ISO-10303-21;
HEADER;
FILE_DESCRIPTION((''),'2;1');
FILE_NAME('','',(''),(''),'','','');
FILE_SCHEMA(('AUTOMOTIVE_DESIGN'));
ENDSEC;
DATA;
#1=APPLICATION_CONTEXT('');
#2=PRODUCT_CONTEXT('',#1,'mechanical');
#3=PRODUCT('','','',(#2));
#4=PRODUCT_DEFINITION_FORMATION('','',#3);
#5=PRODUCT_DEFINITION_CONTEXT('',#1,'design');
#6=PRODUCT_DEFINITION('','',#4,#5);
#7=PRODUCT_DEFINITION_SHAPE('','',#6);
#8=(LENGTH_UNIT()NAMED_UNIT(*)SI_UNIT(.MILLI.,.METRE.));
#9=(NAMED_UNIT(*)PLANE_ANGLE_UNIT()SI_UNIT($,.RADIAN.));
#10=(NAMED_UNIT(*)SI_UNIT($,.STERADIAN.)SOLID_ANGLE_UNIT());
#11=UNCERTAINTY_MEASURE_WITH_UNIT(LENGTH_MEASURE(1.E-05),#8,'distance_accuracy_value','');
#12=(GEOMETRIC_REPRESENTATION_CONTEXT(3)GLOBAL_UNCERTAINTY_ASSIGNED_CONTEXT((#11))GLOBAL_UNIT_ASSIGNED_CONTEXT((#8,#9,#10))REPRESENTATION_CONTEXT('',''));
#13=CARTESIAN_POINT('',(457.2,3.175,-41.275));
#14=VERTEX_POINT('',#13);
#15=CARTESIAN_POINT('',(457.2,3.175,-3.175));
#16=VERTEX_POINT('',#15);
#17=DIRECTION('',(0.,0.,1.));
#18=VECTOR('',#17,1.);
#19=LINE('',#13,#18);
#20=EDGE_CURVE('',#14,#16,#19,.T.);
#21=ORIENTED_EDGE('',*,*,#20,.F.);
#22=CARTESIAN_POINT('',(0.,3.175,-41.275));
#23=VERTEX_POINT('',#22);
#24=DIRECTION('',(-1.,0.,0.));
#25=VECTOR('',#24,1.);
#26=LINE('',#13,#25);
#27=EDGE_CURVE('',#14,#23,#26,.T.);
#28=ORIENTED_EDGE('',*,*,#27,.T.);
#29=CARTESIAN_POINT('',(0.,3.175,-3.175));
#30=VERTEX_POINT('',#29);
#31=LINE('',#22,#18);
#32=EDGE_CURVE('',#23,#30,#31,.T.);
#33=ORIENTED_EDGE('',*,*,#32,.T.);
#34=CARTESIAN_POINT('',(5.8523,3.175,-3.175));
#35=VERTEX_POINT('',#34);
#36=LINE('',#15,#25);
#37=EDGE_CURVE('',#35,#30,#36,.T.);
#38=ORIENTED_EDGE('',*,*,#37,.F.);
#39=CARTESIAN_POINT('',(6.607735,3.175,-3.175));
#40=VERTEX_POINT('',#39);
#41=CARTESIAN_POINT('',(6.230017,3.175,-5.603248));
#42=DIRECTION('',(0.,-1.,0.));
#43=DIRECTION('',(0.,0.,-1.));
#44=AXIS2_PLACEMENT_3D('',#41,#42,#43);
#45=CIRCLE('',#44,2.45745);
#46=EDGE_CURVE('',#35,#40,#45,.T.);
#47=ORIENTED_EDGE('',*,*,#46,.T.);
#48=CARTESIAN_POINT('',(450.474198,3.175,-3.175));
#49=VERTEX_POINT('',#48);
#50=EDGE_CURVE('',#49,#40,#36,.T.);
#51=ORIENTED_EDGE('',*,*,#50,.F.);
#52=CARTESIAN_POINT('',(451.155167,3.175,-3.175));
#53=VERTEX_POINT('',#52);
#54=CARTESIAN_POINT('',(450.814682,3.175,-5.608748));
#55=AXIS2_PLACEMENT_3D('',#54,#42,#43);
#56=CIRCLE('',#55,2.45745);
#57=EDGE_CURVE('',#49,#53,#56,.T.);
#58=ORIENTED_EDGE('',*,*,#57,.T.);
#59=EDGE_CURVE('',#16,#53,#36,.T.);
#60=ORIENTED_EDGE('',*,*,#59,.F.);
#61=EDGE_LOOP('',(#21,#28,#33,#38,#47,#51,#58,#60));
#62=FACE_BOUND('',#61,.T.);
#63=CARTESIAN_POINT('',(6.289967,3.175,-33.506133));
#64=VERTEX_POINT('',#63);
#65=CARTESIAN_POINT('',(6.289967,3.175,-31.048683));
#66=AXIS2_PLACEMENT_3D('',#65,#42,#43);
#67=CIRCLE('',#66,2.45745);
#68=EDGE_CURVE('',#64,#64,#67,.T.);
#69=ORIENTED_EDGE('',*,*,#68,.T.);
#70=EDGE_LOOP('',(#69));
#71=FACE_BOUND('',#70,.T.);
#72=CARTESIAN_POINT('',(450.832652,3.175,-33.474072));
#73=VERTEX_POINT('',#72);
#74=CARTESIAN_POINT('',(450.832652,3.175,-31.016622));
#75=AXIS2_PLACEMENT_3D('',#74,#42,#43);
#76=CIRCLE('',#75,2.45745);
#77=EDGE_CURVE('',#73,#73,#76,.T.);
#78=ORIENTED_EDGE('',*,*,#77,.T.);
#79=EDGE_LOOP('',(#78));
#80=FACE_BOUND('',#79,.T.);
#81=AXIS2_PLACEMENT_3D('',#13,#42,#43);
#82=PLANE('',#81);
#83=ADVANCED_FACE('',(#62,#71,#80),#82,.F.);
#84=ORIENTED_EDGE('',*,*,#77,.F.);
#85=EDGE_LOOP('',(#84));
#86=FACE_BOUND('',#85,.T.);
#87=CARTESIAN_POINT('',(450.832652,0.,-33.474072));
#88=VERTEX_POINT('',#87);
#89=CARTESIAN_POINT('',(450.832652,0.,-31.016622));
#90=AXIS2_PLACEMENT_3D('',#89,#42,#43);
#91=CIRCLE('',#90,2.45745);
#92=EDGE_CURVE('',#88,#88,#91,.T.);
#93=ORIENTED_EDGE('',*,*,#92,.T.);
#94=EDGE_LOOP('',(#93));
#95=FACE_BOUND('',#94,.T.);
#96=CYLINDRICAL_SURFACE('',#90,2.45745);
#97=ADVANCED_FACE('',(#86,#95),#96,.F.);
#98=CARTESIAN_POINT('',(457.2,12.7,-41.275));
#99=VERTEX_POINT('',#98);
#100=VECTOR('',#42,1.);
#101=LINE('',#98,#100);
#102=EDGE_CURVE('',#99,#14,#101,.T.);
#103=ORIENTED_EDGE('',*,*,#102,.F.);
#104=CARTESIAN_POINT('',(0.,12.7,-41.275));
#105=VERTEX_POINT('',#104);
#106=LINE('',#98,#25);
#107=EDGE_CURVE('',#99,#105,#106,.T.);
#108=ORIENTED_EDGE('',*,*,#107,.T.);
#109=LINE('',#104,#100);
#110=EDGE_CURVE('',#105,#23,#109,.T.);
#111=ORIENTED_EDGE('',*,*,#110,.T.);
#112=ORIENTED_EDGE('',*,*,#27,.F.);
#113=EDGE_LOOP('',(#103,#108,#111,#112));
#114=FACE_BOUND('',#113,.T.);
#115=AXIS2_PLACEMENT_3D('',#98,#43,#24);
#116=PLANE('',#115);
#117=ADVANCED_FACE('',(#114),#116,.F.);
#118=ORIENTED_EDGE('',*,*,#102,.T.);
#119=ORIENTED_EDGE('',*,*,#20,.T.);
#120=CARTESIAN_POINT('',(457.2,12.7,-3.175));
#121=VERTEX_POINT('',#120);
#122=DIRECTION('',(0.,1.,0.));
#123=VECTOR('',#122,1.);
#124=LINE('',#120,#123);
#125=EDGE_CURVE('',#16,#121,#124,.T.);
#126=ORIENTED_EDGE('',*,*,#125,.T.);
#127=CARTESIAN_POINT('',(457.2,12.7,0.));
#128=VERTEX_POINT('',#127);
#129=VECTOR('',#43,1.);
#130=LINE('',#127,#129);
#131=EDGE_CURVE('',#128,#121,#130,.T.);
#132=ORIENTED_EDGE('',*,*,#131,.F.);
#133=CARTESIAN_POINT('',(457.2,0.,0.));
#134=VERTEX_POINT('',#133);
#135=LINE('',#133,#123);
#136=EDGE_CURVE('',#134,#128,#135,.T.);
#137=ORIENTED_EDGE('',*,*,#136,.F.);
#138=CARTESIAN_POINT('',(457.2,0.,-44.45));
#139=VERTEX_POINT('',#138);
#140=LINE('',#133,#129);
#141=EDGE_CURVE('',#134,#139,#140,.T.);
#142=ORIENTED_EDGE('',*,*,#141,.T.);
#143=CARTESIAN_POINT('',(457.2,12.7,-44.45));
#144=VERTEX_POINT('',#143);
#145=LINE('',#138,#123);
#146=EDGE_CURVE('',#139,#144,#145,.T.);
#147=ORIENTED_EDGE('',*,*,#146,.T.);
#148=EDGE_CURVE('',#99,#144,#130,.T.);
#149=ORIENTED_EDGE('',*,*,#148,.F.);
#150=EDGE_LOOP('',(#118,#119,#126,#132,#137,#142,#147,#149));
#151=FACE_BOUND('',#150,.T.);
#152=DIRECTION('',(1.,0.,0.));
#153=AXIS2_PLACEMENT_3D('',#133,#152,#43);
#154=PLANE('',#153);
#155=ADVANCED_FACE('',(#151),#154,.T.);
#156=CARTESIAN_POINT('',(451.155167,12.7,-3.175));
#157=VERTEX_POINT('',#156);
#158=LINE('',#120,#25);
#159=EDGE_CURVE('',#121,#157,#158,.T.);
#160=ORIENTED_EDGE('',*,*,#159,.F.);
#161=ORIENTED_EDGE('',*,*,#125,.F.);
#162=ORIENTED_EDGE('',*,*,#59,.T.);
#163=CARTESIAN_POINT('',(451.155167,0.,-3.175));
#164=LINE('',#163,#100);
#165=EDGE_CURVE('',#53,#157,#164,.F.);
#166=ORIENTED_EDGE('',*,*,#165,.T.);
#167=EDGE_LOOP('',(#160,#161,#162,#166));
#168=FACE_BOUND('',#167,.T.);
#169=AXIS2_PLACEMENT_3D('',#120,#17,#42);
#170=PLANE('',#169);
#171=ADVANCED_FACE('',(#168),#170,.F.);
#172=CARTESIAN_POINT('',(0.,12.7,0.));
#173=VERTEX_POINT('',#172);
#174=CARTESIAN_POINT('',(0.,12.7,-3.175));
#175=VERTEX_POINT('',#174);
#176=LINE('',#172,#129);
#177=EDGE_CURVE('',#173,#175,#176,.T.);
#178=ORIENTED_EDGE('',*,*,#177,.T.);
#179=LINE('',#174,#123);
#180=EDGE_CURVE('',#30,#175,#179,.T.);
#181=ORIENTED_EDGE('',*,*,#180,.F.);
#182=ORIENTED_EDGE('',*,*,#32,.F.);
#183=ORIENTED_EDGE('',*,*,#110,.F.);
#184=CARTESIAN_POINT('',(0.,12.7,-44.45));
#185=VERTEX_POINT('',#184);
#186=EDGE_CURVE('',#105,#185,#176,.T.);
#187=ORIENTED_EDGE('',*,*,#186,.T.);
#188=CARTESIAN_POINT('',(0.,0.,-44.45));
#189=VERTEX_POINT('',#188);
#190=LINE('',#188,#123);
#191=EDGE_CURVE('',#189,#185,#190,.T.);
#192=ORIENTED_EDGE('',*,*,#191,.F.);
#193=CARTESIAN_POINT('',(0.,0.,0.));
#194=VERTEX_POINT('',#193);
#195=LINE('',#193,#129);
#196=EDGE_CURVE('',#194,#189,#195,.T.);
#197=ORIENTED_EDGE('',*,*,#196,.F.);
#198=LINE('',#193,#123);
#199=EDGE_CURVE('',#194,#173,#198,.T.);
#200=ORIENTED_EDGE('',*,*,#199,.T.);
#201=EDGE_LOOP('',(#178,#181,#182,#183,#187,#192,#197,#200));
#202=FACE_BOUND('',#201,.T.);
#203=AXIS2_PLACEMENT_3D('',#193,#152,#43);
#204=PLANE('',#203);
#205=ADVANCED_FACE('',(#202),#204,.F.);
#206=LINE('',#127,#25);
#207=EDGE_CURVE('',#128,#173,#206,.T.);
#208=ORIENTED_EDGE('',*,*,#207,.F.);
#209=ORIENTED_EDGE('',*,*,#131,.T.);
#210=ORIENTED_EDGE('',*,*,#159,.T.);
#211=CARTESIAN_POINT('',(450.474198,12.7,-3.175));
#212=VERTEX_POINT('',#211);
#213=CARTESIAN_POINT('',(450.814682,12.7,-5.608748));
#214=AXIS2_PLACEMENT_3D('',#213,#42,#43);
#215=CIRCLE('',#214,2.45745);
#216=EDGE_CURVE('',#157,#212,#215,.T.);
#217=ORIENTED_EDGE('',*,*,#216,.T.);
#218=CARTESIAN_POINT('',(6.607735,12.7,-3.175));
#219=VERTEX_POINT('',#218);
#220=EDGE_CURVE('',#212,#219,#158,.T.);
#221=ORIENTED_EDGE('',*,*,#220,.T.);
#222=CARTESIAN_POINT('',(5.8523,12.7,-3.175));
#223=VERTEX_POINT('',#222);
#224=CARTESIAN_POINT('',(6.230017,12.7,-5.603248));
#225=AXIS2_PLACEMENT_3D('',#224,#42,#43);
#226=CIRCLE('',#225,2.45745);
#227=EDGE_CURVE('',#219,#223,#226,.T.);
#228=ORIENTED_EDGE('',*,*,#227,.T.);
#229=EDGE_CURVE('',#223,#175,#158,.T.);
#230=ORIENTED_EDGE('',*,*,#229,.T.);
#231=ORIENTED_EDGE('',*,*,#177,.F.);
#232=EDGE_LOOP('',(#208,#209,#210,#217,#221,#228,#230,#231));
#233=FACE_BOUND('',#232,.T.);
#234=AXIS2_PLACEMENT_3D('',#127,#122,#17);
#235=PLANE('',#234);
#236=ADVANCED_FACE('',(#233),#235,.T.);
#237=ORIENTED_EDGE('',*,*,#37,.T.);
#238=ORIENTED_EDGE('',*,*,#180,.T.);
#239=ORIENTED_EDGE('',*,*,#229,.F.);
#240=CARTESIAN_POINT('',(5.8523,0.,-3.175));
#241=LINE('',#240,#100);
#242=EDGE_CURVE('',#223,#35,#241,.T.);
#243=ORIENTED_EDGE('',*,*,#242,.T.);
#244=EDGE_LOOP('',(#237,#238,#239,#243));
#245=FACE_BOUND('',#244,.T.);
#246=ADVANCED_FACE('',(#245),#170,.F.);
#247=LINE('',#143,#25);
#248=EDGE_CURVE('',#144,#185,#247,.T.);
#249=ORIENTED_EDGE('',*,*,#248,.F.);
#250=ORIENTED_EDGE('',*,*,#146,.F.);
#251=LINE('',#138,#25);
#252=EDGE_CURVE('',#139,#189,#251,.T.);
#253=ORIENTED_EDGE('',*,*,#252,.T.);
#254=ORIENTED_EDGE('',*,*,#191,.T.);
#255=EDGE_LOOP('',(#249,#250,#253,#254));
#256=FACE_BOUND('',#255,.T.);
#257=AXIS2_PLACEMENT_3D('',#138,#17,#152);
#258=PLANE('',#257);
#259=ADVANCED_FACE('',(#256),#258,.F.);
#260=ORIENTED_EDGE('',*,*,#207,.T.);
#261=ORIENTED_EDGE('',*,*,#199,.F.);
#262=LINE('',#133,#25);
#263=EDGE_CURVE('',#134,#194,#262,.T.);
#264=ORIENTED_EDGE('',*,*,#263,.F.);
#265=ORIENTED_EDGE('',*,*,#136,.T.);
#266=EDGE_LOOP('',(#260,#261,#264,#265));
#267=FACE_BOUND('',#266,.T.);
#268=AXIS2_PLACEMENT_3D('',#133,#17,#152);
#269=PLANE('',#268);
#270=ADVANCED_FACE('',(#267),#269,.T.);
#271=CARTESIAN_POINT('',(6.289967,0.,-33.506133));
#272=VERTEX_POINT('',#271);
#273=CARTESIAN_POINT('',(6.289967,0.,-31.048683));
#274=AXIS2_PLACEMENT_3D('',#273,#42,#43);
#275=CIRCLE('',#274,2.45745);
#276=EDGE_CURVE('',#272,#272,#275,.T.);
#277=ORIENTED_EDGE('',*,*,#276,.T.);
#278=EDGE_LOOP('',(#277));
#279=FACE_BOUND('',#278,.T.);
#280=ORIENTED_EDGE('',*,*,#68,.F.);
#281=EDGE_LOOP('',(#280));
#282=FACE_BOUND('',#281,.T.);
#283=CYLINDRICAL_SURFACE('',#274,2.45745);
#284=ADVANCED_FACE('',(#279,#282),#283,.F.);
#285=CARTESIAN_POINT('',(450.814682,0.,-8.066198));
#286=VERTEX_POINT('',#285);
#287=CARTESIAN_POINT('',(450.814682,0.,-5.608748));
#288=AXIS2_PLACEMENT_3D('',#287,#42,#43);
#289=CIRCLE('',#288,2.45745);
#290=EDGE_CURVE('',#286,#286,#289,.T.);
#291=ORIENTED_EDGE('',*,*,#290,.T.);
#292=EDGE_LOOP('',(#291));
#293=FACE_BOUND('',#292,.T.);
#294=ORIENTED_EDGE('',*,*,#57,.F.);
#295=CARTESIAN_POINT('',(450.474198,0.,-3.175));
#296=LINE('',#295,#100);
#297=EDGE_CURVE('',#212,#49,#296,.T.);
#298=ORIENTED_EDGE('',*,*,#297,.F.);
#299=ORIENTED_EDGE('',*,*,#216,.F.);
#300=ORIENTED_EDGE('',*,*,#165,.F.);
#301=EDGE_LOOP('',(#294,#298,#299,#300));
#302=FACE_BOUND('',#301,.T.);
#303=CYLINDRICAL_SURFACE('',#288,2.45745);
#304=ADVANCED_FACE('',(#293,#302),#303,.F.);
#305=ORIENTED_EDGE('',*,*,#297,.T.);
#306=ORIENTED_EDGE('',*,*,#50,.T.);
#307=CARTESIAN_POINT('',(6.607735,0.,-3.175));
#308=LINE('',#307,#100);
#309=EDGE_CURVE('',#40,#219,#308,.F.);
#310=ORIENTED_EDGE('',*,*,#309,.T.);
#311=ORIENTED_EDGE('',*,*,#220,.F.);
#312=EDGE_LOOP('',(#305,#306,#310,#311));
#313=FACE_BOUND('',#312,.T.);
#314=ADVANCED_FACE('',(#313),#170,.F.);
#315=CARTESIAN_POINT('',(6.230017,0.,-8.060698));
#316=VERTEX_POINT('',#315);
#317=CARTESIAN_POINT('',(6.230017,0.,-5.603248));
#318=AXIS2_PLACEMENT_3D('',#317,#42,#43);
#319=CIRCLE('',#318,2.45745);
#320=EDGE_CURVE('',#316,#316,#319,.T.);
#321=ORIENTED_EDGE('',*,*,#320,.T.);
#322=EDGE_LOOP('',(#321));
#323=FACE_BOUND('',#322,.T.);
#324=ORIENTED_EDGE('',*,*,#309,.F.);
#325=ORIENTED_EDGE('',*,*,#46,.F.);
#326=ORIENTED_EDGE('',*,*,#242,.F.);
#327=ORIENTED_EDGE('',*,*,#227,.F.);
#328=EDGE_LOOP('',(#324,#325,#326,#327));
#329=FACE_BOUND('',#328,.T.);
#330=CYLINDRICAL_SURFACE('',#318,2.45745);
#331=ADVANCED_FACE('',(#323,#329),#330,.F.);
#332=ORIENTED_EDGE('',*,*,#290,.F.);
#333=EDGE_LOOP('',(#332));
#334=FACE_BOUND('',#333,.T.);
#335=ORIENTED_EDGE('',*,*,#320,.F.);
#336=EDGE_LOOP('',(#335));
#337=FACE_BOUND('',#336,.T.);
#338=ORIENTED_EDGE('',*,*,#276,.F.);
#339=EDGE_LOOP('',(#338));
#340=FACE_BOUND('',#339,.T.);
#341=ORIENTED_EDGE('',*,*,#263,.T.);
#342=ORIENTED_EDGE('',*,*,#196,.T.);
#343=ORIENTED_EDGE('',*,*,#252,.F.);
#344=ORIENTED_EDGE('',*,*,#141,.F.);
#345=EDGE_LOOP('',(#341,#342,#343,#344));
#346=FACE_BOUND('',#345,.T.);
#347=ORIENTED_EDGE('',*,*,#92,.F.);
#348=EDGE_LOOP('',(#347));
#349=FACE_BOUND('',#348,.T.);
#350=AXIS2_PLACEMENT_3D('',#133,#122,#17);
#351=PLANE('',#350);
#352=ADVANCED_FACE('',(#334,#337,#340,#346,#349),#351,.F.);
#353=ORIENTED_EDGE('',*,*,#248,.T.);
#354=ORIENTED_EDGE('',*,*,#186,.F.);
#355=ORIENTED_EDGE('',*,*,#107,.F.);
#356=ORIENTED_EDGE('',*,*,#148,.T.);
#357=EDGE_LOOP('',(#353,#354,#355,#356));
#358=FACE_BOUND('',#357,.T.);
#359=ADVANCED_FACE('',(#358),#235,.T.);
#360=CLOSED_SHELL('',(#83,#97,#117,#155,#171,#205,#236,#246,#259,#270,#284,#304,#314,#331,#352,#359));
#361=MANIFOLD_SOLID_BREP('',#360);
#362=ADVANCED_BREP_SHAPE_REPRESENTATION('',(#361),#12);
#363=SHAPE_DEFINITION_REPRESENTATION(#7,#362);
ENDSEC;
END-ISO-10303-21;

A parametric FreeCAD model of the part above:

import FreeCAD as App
import Part
import Sketcher
Q = App.Units.Quantity

doc = App.newDocument("Part")
body = doc.addObject("PartDesign::Body", "Body")

# Sketch on YZ plane
sketch1 = doc.addObject("Sketcher::SketchObject", "Sketch")
body.addObject(sketch1)
sketch1.AttachmentSupport = (doc.YZ_Plane, [""])
sketch1.MapMode = "FlatFace"
sketch1.addGeometry([
    Part.LineSegment(App.Vector(13, 0, 0), App.Vector(0, 0, 0)),
    Part.LineSegment(App.Vector(0, 0, 0), App.Vector(0, -44, 0)),
    Part.LineSegment(App.Vector(0, -44, 0), App.Vector(13, -44, 0)),
    Part.LineSegment(App.Vector(13, -44, 0), App.Vector(13, 0, 0)),
], False)
sketch1.addConstraint([
    Sketcher.Constraint("Coincident", 0, 2, 1, 1),
    Sketcher.Constraint("Coincident", 1, 2, 2, 1),
    Sketcher.Constraint("Coincident", 2, 2, 3, 1),
    Sketcher.Constraint("Coincident", 3, 2, 0, 1),
    Sketcher.Constraint("Horizontal", 0),
    Sketcher.Constraint("Vertical", 1),
    Sketcher.Constraint("Horizontal", 2),
    Sketcher.Constraint("Vertical", 3),
    Sketcher.Constraint("Coincident", 0, 2, -1, 1),
    Sketcher.Constraint("DistanceX", 0, 2, 0, 1, Q("0.5 in")),
    Sketcher.Constraint("DistanceY", 1, 2, 1, 1, Q("1.75 in")),
])
pad1 = doc.addObject("PartDesign::Pad", "Pad")
body.addObject(pad1)
pad1.Profile = sketch1
pad1.Length = Q("18 in")

# Sketch on YZ plane
sketch2 = doc.addObject("Sketcher::SketchObject", "Sketch001")
body.addObject(sketch2)
sketch2.AttachmentSupport = (doc.YZ_Plane, [""])
sketch2.MapMode = "FlatFace"
sketch2.addGeometry([
    Part.LineSegment(App.Vector(13, -41, 0), App.Vector(3, -41, 0)),
    Part.LineSegment(App.Vector(3, -41, 0), App.Vector(3, -3, 0)),
    Part.LineSegment(App.Vector(3, -3, 0), App.Vector(13, -3, 0)),
    Part.LineSegment(App.Vector(13, -3, 0), App.Vector(13, -41, 0)),
], False)
sketch2.addConstraint([
    Sketcher.Constraint("Coincident", 0, 2, 1, 1),
    Sketcher.Constraint("Coincident", 1, 2, 2, 1),
    Sketcher.Constraint("Coincident", 2, 2, 3, 1),
    Sketcher.Constraint("Coincident", 3, 2, 0, 1),
    Sketcher.Constraint("Horizontal", 0),
    Sketcher.Constraint("Vertical", 1),
    Sketcher.Constraint("Horizontal", 2),
    Sketcher.Constraint("Vertical", 3),
    Sketcher.Constraint("DistanceY", 1, 1, 1, 2, Q("1.5 in")),
    Sketcher.Constraint("DistanceX", -1, 1, 2, 2, Q("0.5 in")),
    Sketcher.Constraint("DistanceX", 0, 2, 0, 1, Q("0.375 in")),
    Sketcher.Constraint("DistanceY", 0, 2, -1, 1, Q("1.625 in")),
])
pocket1 = doc.addObject("PartDesign::Pocket", "Pocket")
body.addObject(pocket1)
pocket1.Profile = sketch2
pocket1.Length = Q("18 in")
pocket1.Reversed = True

# Sketch on XZ plane
sketch3 = doc.addObject("Sketcher::SketchObject", "Sketch002")
body.addObject(sketch3)
sketch3.AttachmentSupport = (doc.XZ_Plane, [""])
sketch3.MapMode = "FlatFace"
sketch3.addGeometry([
    Part.Circle(App.Vector(450.8, -31, 0), App.Vector(0, 0, 1), 2.5),
    Part.Circle(App.Vector(450.8, -5.6, 0), App.Vector(0, 0, 1), 2.5),
    Part.Circle(App.Vector(6.3, -31, 0), App.Vector(0, 0, 1), 2.5),
    Part.Circle(App.Vector(6.2, -5.6, 0), App.Vector(0, 0, 1), 2.5),
], False)
sketch3.addConstraint([
    Sketcher.Constraint("Equal", 0, 1),
    Sketcher.Constraint("Equal", 1, 2),
    Sketcher.Constraint("Equal", 2, 3),
    Sketcher.Constraint("Diameter", 0, Q("0.1935 in")),
    Sketcher.Constraint("DistanceY", 1, 3, 3, 3, 0.0055),
    Sketcher.Constraint("DistanceY", 1, 3, -1, 1, 5.608748),
    Sketcher.Constraint("DistanceX", 1, 3, 0, 3, 0.01797),
    Sketcher.Constraint("DistanceY", 2, 3, 0, 3, 0.032061),
    Sketcher.Constraint("DistanceX", 3, 3, 2, 3, 0.059949),
    Sketcher.Constraint("DistanceX", -1, 1, 0, 3, 450.832652),
    Sketcher.Constraint("DistanceY", 0, 3, -1, 1, 31.016622),
    Sketcher.Constraint("DistanceX", -1, 1, 2, 3, 6.289967),
])
doc.recompute()
hole = doc.addObject("PartDesign::Hole", "Hole")
body.addObject(hole)
hole.Profile = sketch3
hole.ThreadType = "None"
hole.Diameter = Q("0.1935 in")
hole.DepthType = "ThroughAll"

doc.recompute()
